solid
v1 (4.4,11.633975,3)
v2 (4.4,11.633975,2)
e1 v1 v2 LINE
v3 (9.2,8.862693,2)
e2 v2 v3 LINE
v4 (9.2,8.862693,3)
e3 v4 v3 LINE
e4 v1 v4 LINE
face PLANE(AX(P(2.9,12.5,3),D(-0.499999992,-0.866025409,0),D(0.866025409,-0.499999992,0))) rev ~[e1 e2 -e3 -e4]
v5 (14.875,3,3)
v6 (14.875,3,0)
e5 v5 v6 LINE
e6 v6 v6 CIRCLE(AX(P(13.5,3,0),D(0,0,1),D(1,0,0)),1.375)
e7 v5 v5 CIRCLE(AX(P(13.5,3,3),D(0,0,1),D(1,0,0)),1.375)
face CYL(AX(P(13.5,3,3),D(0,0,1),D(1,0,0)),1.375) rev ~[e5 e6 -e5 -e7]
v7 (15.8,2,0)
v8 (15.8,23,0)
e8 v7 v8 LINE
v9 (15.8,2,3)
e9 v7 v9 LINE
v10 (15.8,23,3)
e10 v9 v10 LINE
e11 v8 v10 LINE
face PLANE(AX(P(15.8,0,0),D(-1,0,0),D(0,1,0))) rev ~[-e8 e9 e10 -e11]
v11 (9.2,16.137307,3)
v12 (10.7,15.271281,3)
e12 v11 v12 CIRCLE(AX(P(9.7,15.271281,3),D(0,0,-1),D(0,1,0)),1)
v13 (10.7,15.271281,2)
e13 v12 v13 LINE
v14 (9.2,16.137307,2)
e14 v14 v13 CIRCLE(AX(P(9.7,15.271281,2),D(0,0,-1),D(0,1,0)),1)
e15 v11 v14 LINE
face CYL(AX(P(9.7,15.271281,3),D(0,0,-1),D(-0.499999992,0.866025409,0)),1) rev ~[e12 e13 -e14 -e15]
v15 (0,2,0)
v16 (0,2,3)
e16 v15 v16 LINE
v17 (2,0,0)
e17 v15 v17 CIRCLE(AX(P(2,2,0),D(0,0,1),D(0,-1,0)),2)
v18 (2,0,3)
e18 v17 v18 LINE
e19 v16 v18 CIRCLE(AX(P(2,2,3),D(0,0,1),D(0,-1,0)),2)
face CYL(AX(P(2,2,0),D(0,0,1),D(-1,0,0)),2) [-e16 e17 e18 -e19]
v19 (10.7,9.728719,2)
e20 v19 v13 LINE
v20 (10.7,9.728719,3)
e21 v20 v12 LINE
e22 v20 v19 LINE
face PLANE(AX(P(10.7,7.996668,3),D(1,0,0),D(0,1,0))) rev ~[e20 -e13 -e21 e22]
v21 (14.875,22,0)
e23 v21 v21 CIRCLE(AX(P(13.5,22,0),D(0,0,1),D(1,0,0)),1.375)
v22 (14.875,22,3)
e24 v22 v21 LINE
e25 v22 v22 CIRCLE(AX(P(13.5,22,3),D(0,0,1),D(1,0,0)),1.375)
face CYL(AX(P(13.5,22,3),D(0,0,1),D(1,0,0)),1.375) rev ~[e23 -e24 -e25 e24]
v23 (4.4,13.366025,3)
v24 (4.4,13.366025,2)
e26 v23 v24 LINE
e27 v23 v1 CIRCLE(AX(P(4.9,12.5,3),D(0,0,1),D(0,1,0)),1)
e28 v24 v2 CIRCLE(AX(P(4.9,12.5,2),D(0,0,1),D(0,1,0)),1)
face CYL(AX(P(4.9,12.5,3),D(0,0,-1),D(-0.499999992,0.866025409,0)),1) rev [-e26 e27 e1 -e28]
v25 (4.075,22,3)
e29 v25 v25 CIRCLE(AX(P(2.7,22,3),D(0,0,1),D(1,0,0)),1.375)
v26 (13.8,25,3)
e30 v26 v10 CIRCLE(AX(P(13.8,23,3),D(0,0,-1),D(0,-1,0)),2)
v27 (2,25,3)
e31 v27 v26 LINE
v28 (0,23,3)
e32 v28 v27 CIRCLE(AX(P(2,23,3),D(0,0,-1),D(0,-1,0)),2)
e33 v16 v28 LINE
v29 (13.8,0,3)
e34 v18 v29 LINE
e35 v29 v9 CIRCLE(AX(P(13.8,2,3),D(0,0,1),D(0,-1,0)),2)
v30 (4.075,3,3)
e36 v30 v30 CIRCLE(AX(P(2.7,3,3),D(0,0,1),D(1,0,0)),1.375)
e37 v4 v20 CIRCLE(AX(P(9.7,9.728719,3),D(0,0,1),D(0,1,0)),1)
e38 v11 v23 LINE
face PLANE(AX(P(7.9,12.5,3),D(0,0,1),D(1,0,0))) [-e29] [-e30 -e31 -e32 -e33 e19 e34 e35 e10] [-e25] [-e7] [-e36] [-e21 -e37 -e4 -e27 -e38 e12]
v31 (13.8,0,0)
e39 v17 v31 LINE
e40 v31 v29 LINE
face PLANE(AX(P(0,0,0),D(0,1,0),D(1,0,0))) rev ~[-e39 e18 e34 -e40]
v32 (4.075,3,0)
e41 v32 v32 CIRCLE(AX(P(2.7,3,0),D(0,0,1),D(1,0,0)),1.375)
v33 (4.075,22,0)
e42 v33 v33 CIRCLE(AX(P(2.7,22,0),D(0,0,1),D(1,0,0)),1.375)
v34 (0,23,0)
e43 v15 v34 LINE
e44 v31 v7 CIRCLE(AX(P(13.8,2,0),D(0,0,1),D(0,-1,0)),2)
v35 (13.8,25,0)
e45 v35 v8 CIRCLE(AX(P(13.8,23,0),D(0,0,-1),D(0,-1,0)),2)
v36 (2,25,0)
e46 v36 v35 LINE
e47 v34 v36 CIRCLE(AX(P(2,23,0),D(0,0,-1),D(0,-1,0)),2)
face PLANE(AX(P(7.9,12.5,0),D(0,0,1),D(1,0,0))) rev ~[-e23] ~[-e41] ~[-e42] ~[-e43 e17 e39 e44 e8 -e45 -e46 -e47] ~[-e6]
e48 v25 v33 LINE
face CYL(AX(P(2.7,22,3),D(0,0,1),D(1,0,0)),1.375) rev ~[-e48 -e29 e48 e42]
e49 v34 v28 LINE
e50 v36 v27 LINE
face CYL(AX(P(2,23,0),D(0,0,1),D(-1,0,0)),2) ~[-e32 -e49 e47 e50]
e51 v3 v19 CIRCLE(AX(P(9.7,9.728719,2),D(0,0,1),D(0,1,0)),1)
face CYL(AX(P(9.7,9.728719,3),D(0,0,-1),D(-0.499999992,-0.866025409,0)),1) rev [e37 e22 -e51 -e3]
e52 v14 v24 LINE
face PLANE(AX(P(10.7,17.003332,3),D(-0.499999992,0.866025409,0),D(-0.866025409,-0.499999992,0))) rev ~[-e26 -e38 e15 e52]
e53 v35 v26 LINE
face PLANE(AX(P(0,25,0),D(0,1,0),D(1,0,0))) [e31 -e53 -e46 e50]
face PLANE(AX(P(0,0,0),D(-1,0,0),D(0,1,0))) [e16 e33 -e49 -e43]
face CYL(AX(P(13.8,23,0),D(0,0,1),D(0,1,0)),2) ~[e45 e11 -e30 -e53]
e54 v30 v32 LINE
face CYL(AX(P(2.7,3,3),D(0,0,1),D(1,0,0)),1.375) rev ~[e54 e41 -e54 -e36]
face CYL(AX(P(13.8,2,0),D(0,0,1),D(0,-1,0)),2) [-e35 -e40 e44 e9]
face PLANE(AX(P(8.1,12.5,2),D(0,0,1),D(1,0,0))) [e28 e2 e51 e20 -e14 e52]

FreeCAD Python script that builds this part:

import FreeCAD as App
import Part
import Sketcher
Q = App.Units.Quantity


def edges_at(feature, points):
    """Names of the edges that pass closest to the given points."""
    edges = feature.Shape.Edges
    near = lambda p: min(range(len(edges)), key=lambda i: edges[i].distToShape(Part.Vertex(*p))[0])
    return sorted({f"Edge{near(p) + 1}" for p in points})


def add_polygon(sketch, points):
    """Adds a closed chain of lines whose ends are joined by coincident constraints."""
    first, n = sketch.GeometryCount, len(points)
    for a, b in zip(points, points[1:] + points[:1]):
        sketch.addGeometry(Part.LineSegment(App.Vector(*a, 0), App.Vector(*b, 0)), False)
    for i in range(n):
        sketch.addConstraint(Sketcher.Constraint("Coincident", first + i, 2, first + (i + 1) % n, 1))

doc = App.newDocument("Part")
body = doc.addObject("PartDesign::Body", "Body")

sketch1 = body.newObject("Sketcher::SketchObject", "Sketch")
sketch1.AttachmentSupport = (doc.getObject("XY_Plane"), [""])
sketch1.MapMode = "FlatFace"
add_polygon(sketch1, [(0, 25), (0, 0), (16, 0), (16, 25)])
sketch1.addConstraint([
    Sketcher.Constraint("Vertical", 0),
    Sketcher.Constraint("Horizontal", 1),
    Sketcher.Constraint("Vertical", 2),
    Sketcher.Constraint("Horizontal", 3),
    Sketcher.Constraint("Coincident", 0, 2, -1, 1),
    Sketcher.Constraint("DistanceY", 0, 2, 0, 1, 25.0),
    Sketcher.Constraint("DistanceX", 1, 1, 1, 2, 15.8),
])
pad1 = body.newObject("PartDesign::Pad", "Pad")
pad1.Profile = sketch1
pad1.Length = 3

sketch2 = body.newObject("Sketcher::SketchObject", "Sketch001")
sketch2.AttachmentSupport = (doc.getObject("XY_Plane"), [""])
sketch2.MapMode = "FlatFace"
sketch2.AttachmentOffset = App.Placement(App.Vector(0, 0, 3), App.Rotation())
sketch2.addGeometry([
    Part.Circle(App.Vector(13.5, 3, 0), App.Vector(0, 0, 1), 1.4),
    Part.Circle(App.Vector(2.7, 3, 0), App.Vector(0, 0, 1), 1.4),
], False)
sketch2.addConstraint([
    Sketcher.Constraint("Equal", 0, 1),
    Sketcher.Constraint("Horizontal", 0, 3, 1, 3),
    Sketcher.Constraint("Diameter", 0, 2.75),
    Sketcher.Constraint("DistanceY", -1, 1, 0, 3, 3.0),
    Sketcher.Constraint("DistanceX", -1, 1, 0, 3, 13.5),
    Sketcher.Constraint("DistanceX", -1, 1, 1, 3, 2.7),
])
pocket1 = body.newObject("PartDesign::Pocket", "Pocket")
pocket1.Profile = sketch2
pocket1.Length = 5

sketch3 = body.newObject("Sketcher::SketchObject", "Sketch002")
sketch3.AttachmentSupport = (doc.getObject("XY_Plane"), [""])
sketch3.MapMode = "FlatFace"
sketch3.AttachmentOffset = App.Placement(App.Vector(0, 0, 3), App.Rotation())
sketch3.addGeometry(Part.Circle(App.Vector(2.7, 22, 0), App.Vector(0, 0, 1), 1.4), False)
sketch3.addConstraint([
    Sketcher.Constraint("Diameter", 0, 2.75),
    Sketcher.Constraint("DistanceY", -1, 1, 0, 3, 22.0),
    Sketcher.Constraint("DistanceX", -1, 1, 0, 3, 2.7),
])
pocket2 = body.newObject("PartDesign::Pocket", "Pocket001")
pocket2.Profile = sketch3
pocket2.Length = 5

sketch4 = body.newObject("Sketcher::SketchObject", "Sketch003")
sketch4.AttachmentSupport = (doc.getObject("XY_Plane"), [""])
sketch4.MapMode = "FlatFace"
sketch4.AttachmentOffset = App.Placement(App.Vector(0, 0, 3), App.Rotation())
sketch4.addGeometry(Part.Circle(App.Vector(13.5, 22, 0), App.Vector(0, 0, 1), 1.4), False)
sketch4.addConstraint([
    Sketcher.Constraint("Diameter", 0, 2.75),
    Sketcher.Constraint("DistanceY", -1, 1, 0, 3, 22.0),
    Sketcher.Constraint("DistanceX", -1, 1, 0, 3, 13.5),
])
pocket3 = body.newObject("PartDesign::Pocket", "Pocket002")
pocket3.Profile = sketch4
pocket3.Length = 5
doc.recompute()

fillet = body.newObject("PartDesign::Fillet", "Fillet")
fillet.Base = (pocket3, edges_at(pocket3, [
    (15.8, 25, 1.5),
    (15.8, 0, 1.5),
    (0, 0, 1.5),
    (0, 25, 1.5),
]))
fillet.Radius = 2

sketch5 = body.newObject("Sketcher::SketchObject", "Sketch004")
sketch5.AttachmentSupport = (doc.getObject("XY_Plane"), [""])
sketch5.MapMode = "FlatFace"
sketch5.AttachmentOffset = App.Placement(App.Vector(0, 0, 3), App.Rotation())
add_polygon(sketch5, [(11, 17), (3, 12), (11, 8)])
sketch5.addConstraint([
    Sketcher.Constraint("Vertical", 2),
    Sketcher.Constraint("Equal", 0, 1),
    Sketcher.Constraint("Angle", 0, Q("-150.000001 deg")),
    Sketcher.Constraint("DistanceX", -1, 1, 0, 2, 2.9),
    Sketcher.Constraint("DistanceY", -1, 1, 0, 2, 12.5),
    Sketcher.Constraint("DistanceX", -1, 1, 1, 2, 10.7),
])
pocket4 = body.newObject("PartDesign::Pocket", "Pocket003")
pocket4.Profile = sketch5
pocket4.Length = 1
doc.recompute()

fillet2 = body.newObject("PartDesign::Fillet", "Fillet001")
fillet2.Base = (pocket4, edges_at(pocket4, [(2.9, 12.5, 2.5), (10.7, 17.003, 2.5), (10.7, 7.997, 2.5)]))
fillet2.Radius = 1

doc.recompute()
